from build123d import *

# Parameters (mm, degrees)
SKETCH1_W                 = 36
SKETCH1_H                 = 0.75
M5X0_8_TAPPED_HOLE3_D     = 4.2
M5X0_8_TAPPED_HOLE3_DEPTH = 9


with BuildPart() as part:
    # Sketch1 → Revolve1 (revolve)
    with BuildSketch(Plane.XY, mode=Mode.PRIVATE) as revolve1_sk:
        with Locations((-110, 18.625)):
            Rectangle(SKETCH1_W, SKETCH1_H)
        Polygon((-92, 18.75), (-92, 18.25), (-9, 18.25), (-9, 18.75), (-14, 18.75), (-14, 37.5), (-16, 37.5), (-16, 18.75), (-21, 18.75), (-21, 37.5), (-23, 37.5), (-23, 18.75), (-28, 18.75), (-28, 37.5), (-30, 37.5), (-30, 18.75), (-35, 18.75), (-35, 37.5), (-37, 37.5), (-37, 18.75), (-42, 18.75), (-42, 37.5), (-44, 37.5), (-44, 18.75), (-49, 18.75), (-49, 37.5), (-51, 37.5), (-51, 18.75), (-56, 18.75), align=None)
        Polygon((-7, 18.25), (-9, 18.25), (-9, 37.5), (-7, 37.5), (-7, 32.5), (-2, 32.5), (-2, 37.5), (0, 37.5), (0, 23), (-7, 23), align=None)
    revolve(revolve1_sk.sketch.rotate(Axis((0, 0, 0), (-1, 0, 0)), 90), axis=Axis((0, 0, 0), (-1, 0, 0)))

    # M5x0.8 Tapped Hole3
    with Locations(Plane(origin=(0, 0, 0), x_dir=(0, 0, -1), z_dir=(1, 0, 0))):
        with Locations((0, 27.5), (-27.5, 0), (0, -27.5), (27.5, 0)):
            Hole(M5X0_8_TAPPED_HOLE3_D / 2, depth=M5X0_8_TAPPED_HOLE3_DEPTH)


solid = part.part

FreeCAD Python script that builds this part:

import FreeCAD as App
import Part
import Sketcher

V = App.Vector

doc = App.newDocument("Part")
body = doc.addObject("PartDesign::Body", "Body")

sketch1 = body.newObject("Sketcher::SketchObject", "Sketch")
sketch1.AttachmentSupport = (doc.getObject("XY_Plane"), [""])
sketch1.MapMode = "FlatFace"
sketch1.addGeometry([
    Part.LineSegment(V(-128, 19, 0), V(-128, 18.25, 0)),
    Part.LineSegment(V(-128, 18.25, 0), V(-7, 18.25, 0)),
    Part.LineSegment(V(-7, 18.25, 0), V(-7, 23, 0)),
    Part.LineSegment(V(-7, 23, 0), V(0, 23, 0)),
    Part.LineSegment(V(0, 23, 0), V(0, 37.5, 0)),
    Part.LineSegment(V(0, 37.5, 0), V(-2, 37.5, 0)),
    Part.LineSegment(V(-2, 37.5, 0), V(-2, 32.5, 0)),
    Part.LineSegment(V(-2, 32.5, 0), V(-7, 32.5, 0)),
    Part.LineSegment(V(-7, 32.5, 0), V(-7, 37.5, 0)),
    Part.LineSegment(V(-7, 37.5, 0), V(-9, 37.5, 0)),
    Part.LineSegment(V(-9, 37.5, 0), V(-9, 18.75, 0)),
    Part.LineSegment(V(-9, 18.75, 0), V(-14, 18.75, 0)),
    Part.LineSegment(V(-14, 18.75, 0), V(-14, 37.5, 0)),
    Part.LineSegment(V(-14, 37.5, 0), V(-16, 37.5, 0)),
    Part.LineSegment(V(-16, 37.5, 0), V(-16, 18.75, 0)),
    Part.LineSegment(V(-16, 18.75, 0), V(-21, 18.75, 0)),
    Part.LineSegment(V(-21, 18.75, 0), V(-21, 37.5, 0)),
    Part.LineSegment(V(-21, 37.5, 0), V(-23, 37.5, 0)),
    Part.LineSegment(V(-23, 37.5, 0), V(-23, 18.75, 0)),
    Part.LineSegment(V(-23, 18.75, 0), V(-28, 18.75, 0)),
    Part.LineSegment(V(-28, 18.75, 0), V(-28, 37.5, 0)),
    Part.LineSegment(V(-28, 37.5, 0), V(-30, 37.5, 0)),
    Part.LineSegment(V(-30, 37.5, 0), V(-30, 18.75, 0)),
    Part.LineSegment(V(-30, 18.75, 0), V(-35, 18.75, 0)),
    Part.LineSegment(V(-35, 18.75, 0), V(-35, 37.5, 0)),
    Part.LineSegment(V(-35, 37.5, 0), V(-37, 37.5, 0)),
    Part.LineSegment(V(-37, 37.5, 0), V(-37, 18.75, 0)),
    Part.LineSegment(V(-37, 18.75, 0), V(-42, 18.75, 0)),
    Part.LineSegment(V(-42, 18.75, 0), V(-42, 37.5, 0)),
    Part.LineSegment(V(-42, 37.5, 0), V(-44, 37.5, 0)),
    Part.LineSegment(V(-44, 37.5, 0), V(-44, 18.75, 0)),
    Part.LineSegment(V(-44, 18.75, 0), V(-49, 18.75, 0)),
    Part.LineSegment(V(-49, 18.75, 0), V(-49, 37.5, 0)),
    Part.LineSegment(V(-49, 37.5, 0), V(-51, 37.5, 0)),
    Part.LineSegment(V(-51, 37.5, 0), V(-51, 18.75, 0)),
    Part.LineSegment(V(-51, 18.75, 0), V(-92, 18.75, 0)),
    Part.LineSegment(V(-92, 18.75, 0), V(-92, 19, 0)),
    Part.LineSegment(V(-92, 19, 0), V(-128, 19, 0)),
], False)
sketch1.addConstraint([
    Sketcher.Constraint("Coincident", 0, 2, 1, 1),
    Sketcher.Constraint("Coincident", 1, 2, 2, 1),
    Sketcher.Constraint("Coincident", 2, 2, 3, 1),
    Sketcher.Constraint("Coincident", 3, 2, 4, 1),
    Sketcher.Constraint("Coincident", 4, 2, 5, 1),
    Sketcher.Constraint("Coincident", 5, 2, 6, 1),
    Sketcher.Constraint("Coincident", 6, 2, 7, 1),
    Sketcher.Constraint("Coincident", 7, 2, 8, 1),
    Sketcher.Constraint("Coincident", 8, 2, 9, 1),
    Sketcher.Constraint("Coincident", 9, 2, 10, 1),
    Sketcher.Constraint("Coincident", 10, 2, 11, 1),
    Sketcher.Constraint("Coincident", 11, 2, 12, 1),
    Sketcher.Constraint("Coincident", 12, 2, 13, 1),
    Sketcher.Constraint("Coincident", 13, 2, 14, 1),
    Sketcher.Constraint("Coincident", 14, 2, 15, 1),
    Sketcher.Constraint("Coincident", 15, 2, 16, 1),
    Sketcher.Constraint("Coincident", 16, 2, 17, 1),
    Sketcher.Constraint("Coincident", 17, 2, 18, 1),
    Sketcher.Constraint("Coincident", 18, 2, 19, 1),
    Sketcher.Constraint("Coincident", 19, 2, 20, 1),
    Sketcher.Constraint("Coincident", 20, 2, 21, 1),
    Sketcher.Constraint("Coincident", 21, 2, 22, 1),
    Sketcher.Constraint("Coincident", 22, 2, 23, 1),
    Sketcher.Constraint("Coincident", 23, 2, 24, 1),
    Sketcher.Constraint("Coincident", 24, 2, 25, 1),
    Sketcher.Constraint("Coincident", 25, 2, 26, 1),
    Sketcher.Constraint("Coincident", 26, 2, 27, 1),
    Sketcher.Constraint("Coincident", 27, 2, 28, 1),
    Sketcher.Constraint("Coincident", 28, 2, 29, 1),
    Sketcher.Constraint("Coincident", 29, 2, 30, 1),
    Sketcher.Constraint("Coincident", 30, 2, 31, 1),
    Sketcher.Constraint("Coincident", 31, 2, 32, 1),
    Sketcher.Constraint("Coincident", 32, 2, 33, 1),
    Sketcher.Constraint("Coincident", 33, 2, 34, 1),
    Sketcher.Constraint("Coincident", 34, 2, 35, 1),
    Sketcher.Constraint("Coincident", 35, 2, 36, 1),
    Sketcher.Constraint("Coincident", 36, 2, 37, 1),
    Sketcher.Constraint("Coincident", 37, 2, 0, 1),
    Sketcher.Constraint("Vertical", 0),
    Sketcher.Constraint("Horizontal", 1),
    Sketcher.Constraint("Vertical", 2),
    Sketcher.Constraint("Horizontal", 3),
    Sketcher.Constraint("Vertical", 4),
    Sketcher.Constraint("Horizontal", 5),
    Sketcher.Constraint("Vertical", 6),
    Sketcher.Constraint("Horizontal", 7),
    Sketcher.Constraint("Vertical", 8),
    Sketcher.Constraint("Horizontal", 9),
    Sketcher.Constraint("Vertical", 10),
    Sketcher.Constraint("Horizontal", 11),
    Sketcher.Constraint("Vertical", 12),
    Sketcher.Constraint("Horizontal", 13),
    Sketcher.Constraint("Vertical", 14),
    Sketcher.Constraint("Horizontal", 15),
    Sketcher.Constraint("Vertical", 16),
    Sketcher.Constraint("Horizontal", 17),
    Sketcher.Constraint("Vertical", 18),
    Sketcher.Constraint("Horizontal", 19),
    Sketcher.Constraint("Vertical", 20),
    Sketcher.Constraint("Horizontal", 21),
    Sketcher.Constraint("Vertical", 22),
    Sketcher.Constraint("Horizontal", 23),
    Sketcher.Constraint("Vertical", 24),
    Sketcher.Constraint("Horizontal", 25),
    Sketcher.Constraint("Vertical", 26),
    Sketcher.Constraint("Horizontal", 27),
    Sketcher.Constraint("Vertical", 28),
    Sketcher.Constraint("Horizontal", 29),
    Sketcher.Constraint("Vertical", 30),
    Sketcher.Constraint("Horizontal", 31),
    Sketcher.Constraint("Vertical", 32),
    Sketcher.Constraint("Horizontal", 33),
    Sketcher.Constraint("Vertical", 34),
    Sketcher.Constraint("Horizontal", 35),
    Sketcher.Constraint("Vertical", 36),
    Sketcher.Constraint("Horizontal", 37),
    Sketcher.Constraint("PointOnObject", 3, 2, -2),
    Sketcher.Constraint("Horizontal", 5, 2, 8, 2),
    Sketcher.Constraint("Horizontal", 9, 2, 12, 2),
    Sketcher.Constraint("Horizontal", 11, 2, 14, 2),
    Sketcher.Constraint("Horizontal", 13, 2, 16, 2),
    Sketcher.Constraint("Horizontal", 15, 2, 18, 2),
    Sketcher.Constraint("Horizontal", 17, 2, 20, 2),
    Sketcher.Constraint("Horizontal", 19, 2, 22, 2),
    Sketcher.Constraint("Horizontal", 21, 2, 24, 2),
    Sketcher.Constraint("Horizontal", 23, 2, 26, 2),
    Sketcher.Constraint("Horizontal", 25, 2, 28, 2),
    Sketcher.Constraint("Horizontal", 27, 2, 30, 2),
    Sketcher.Constraint("Horizontal", 29, 2, 32, 2),
    Sketcher.Constraint("Horizontal", 31, 2, 34, 2),
    Sketcher.Constraint("Vertical", 2, 2, 7, 2),
    Sketcher.Constraint("Equal", 5, 9),
    Sketcher.Constraint("Equal", 7, 11),
    Sketcher.Constraint("Equal", 9, 13),
    Sketcher.Constraint("Equal", 11, 15),
    Sketcher.Constraint("Equal", 13, 17),
    Sketcher.Constraint("Equal", 15, 19),
    Sketcher.Constraint("Equal", 17, 21),
    Sketcher.Constraint("Equal", 19, 23),
    Sketcher.Constraint("Equal", 21, 25),
    Sketcher.Constraint("Equal", 23, 27),
    Sketcher.Constraint("Equal", 25, 29),
    Sketcher.Constraint("Equal", 27, 31),
    Sketcher.Constraint("Equal", 29, 33),
    Sketcher.Constraint("Equal", 31, 6),
    Sketcher.Constraint("DistanceX", 1, 1, 1, 2, 121.0),
    Sketcher.Constraint("DistanceX", 3, 1, 3, 2, 7.0),
    Sketcher.Constraint("DistanceX", 5, 2, 5, 1, 2.0),
    Sketcher.Constraint("DistanceX", 35, 2, 35, 1, 41.0),
    Sketcher.Constraint("DistanceY", 4, 1, 4, 2, 14.5),
    Sketcher.Constraint("DistanceY", -1, 1, 2, 2, 23.0),
    Sketcher.Constraint("DistanceY", -1, 1, 36, 2, 19.0),
    Sketcher.Constraint("DistanceY", 0, 2, 0, 1, 0.75),
    Sketcher.Constraint("DistanceY", 10, 2, 10, 1, 18.75),
])
revolution = body.newObject("PartDesign::Revolution", "Revolution")
revolution.Profile = sketch1
revolution.ReferenceAxis = (sketch1, ["H_Axis"])
revolution.Angle = 360

sketch2 = body.newObject("Sketcher::SketchObject", "Sketch001")
sketch2.AttachmentSupport = (doc.getObject("YZ_Plane"), [""])
sketch2.MapMode = "FlatFace"
sketch2.addGeometry([
    Part.Circle(V(27.5, 0, 0), V(0, 0, 1), 2.1),
    Part.Circle(V(0, 27.5, 0), V(0, 0, 1), 2.1),
    Part.Circle(V(-27.5, 0, 0), V(0, 0, 1), 2.1),
    Part.Circle(V(0, -27.5, 0), V(0, 0, 1), 2.1),
], False)
sketch2.addConstraint([
    Sketcher.Constraint("Equal", 0, 1),
    Sketcher.Constraint("Equal", 1, 2),
    Sketcher.Constraint("Equal", 2, 3),
    Sketcher.Constraint("Symmetric", 0, 3, 2, 3, -1, 1),
    Sketcher.Constraint("Symmetric", 1, 3, 3, 3, -1, 1),
    Sketcher.Constraint("PointOnObject", 0, 3, -1),
    Sketcher.Constraint("PointOnObject", 1, 3, -2),
    Sketcher.Constraint("Diameter", 0, 4.2),
    Sketcher.Constraint("DistanceX", 2, 3, 0, 3, 55.0),
    Sketcher.Constraint("DistanceY", 3, 3, 1, 3, 55.0),
])
doc.recompute()
hole = body.newObject("PartDesign::Hole", "Hole")
hole.Profile = sketch2
hole.ThreadType = "None"
hole.Diameter = 4.2
hole.DepthType = "Dimension"
hole.Depth = 9
hole.DrillPoint = "Flat"

doc.recompute()
